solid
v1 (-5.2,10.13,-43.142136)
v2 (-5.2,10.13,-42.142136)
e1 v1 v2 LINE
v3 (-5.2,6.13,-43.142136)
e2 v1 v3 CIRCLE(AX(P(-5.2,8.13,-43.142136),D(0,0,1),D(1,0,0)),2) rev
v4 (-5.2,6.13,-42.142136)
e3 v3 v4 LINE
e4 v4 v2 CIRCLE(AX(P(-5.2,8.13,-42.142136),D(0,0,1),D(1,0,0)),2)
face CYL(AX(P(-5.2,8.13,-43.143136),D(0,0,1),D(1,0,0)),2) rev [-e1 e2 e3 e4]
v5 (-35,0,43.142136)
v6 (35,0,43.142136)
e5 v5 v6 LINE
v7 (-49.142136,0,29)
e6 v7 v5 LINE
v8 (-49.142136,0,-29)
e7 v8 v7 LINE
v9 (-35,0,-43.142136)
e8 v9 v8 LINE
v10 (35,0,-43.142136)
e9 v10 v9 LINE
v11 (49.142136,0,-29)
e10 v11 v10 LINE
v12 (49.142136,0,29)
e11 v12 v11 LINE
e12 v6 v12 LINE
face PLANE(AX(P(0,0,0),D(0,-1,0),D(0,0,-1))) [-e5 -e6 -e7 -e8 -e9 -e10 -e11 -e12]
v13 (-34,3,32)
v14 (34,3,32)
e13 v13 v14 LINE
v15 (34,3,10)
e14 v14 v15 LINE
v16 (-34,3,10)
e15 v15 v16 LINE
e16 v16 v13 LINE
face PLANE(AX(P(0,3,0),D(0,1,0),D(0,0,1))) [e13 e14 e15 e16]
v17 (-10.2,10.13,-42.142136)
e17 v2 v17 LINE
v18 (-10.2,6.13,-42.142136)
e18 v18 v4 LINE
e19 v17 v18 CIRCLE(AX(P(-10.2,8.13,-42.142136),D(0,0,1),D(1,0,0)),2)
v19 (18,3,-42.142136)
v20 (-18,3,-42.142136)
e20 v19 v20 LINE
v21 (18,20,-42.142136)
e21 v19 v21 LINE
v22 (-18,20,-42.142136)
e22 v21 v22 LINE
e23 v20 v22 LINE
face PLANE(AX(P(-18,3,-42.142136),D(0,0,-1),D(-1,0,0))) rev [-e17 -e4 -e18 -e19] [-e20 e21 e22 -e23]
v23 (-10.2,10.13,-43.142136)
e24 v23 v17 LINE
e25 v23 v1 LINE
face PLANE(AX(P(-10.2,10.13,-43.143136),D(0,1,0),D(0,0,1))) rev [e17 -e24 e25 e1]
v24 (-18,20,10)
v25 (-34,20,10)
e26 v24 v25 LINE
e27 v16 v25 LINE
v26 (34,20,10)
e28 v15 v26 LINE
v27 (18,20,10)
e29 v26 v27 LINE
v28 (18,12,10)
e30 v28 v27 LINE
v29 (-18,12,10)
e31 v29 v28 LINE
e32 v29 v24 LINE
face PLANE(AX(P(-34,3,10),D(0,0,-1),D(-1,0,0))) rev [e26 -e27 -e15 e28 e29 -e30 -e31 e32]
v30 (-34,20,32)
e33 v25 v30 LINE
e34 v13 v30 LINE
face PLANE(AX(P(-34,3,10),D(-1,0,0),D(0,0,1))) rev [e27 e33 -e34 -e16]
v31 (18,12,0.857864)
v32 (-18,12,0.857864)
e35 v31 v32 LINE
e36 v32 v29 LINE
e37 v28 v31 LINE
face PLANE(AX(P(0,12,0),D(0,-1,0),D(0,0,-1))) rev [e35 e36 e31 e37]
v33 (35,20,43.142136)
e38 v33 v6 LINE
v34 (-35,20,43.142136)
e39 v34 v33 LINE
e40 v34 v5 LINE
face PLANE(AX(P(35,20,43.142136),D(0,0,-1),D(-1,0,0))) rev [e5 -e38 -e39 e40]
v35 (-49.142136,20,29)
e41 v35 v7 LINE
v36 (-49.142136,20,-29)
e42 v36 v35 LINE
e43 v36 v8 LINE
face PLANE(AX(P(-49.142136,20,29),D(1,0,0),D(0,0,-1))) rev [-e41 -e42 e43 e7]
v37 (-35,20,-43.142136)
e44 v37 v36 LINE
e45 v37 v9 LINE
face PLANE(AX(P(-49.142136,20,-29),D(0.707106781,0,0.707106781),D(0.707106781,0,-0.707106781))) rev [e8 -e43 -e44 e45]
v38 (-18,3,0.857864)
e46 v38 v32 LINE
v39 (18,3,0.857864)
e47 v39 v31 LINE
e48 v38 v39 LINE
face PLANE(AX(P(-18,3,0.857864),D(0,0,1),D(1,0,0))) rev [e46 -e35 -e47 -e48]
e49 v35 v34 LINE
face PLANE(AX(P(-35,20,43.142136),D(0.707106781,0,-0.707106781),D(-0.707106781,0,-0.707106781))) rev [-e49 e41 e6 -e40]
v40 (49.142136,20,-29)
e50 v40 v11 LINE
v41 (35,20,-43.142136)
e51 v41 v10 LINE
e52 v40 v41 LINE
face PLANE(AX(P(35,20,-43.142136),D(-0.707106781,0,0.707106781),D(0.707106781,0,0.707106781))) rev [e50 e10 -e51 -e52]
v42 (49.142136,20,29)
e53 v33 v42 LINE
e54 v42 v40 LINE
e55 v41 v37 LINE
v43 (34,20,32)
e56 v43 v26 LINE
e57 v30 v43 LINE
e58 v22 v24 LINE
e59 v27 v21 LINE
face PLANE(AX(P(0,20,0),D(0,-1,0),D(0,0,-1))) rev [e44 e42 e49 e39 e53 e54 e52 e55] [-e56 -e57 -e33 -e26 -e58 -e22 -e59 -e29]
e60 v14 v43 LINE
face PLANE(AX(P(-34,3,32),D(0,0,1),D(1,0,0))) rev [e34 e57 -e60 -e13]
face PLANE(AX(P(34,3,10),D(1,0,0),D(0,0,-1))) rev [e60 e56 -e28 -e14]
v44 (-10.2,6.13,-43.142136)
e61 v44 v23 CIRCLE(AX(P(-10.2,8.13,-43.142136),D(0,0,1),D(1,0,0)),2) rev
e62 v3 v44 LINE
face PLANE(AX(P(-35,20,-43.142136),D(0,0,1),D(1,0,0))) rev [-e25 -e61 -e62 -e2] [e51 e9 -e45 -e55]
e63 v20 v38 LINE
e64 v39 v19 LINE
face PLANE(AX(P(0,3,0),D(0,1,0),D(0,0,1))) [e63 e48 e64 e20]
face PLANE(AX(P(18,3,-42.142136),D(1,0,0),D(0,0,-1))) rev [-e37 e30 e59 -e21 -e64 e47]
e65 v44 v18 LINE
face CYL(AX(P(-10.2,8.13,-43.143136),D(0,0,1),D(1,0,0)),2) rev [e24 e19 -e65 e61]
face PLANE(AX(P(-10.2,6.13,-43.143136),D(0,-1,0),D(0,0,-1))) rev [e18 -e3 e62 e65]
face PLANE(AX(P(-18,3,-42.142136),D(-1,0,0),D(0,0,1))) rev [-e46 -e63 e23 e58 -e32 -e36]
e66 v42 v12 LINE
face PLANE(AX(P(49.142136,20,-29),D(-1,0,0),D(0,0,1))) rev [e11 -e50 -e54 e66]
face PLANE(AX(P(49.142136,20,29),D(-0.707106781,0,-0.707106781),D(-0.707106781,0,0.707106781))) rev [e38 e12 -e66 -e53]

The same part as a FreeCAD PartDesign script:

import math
import FreeCAD as App
import Part
import Sketcher
from FreeCAD import Vector

doc = App.newDocument("Part")
params = doc.addObject("Spreadsheet::Sheet", "Params")
for row, (alias, value) in enumerate([
    ("sketch1_width", "70 mm"),
    ("sketch1_height", "58 mm"),
    ("sketch1_length", "20 mm"),
    ("pad1_length", "20 mm"),
    ("sketch2_width", "36 mm"),
    ("sketch2_width2", "68 mm"),
    ("sketch2_height", "43 mm"),
    ("sketch2_height2", "22 mm"),
    ("pocket1_length", "17 mm"),
    ("sketch3_width", "36 mm"),
    ("pocket2_length", "8 mm"),
    ("sketch4_radius", "2 mm"),
    ("sketch4_width", "5 mm"),
], start=1):
    params.set(f"A{row}", alias)
    params.set(f"B{row}", "=" + value)
    params.setAlias(f"B{row}", alias)

body = doc.addObject("PartDesign::Body", "Body")

# Sketch on XZ plane
sketch1 = body.newObject("Sketcher::SketchObject", "Sketch")
sketch1.AttachmentSupport = (doc.getObject("XZ_Plane"), [""])
sketch1.MapMode = "FlatFace"
sketch1.addGeometry([
    Part.LineSegment(Vector(35, -43, 0), Vector(-35, -43, 0)),  # 0
    Part.LineSegment(Vector(-35, -43, 0), Vector(-49, -29, 0)),  # 1
    Part.LineSegment(Vector(-49, -29, 0), Vector(-49, 29, 0)),  # 2
    Part.LineSegment(Vector(-49, 29, 0), Vector(-35, 43, 0)),  # 3
    Part.LineSegment(Vector(-35, 43, 0), Vector(35, 43, 0)),  # 4
    Part.LineSegment(Vector(35, 43, 0), Vector(49, 29, 0)),  # 5
    Part.LineSegment(Vector(49, 29, 0), Vector(49, -29, 0)),  # 6
    Part.LineSegment(Vector(49, -29, 0), Vector(35, -43, 0)),  # 7
], False)
sketch1.addConstraint([
    Sketcher.Constraint("Coincident", 0, 2, 1, 1),
    Sketcher.Constraint("Coincident", 1, 2, 2, 1),
    Sketcher.Constraint("Coincident", 2, 2, 3, 1),
    Sketcher.Constraint("Coincident", 3, 2, 4, 1),
    Sketcher.Constraint("Coincident", 4, 2, 5, 1),
    Sketcher.Constraint("Coincident", 5, 2, 6, 1),
    Sketcher.Constraint("Coincident", 6, 2, 7, 1),
    Sketcher.Constraint("Coincident", 7, 2, 0, 1),
    Sketcher.Constraint("Horizontal", 0),
    Sketcher.Constraint("Vertical", 2),
    Sketcher.Constraint("Horizontal", 4),
    Sketcher.Constraint("Vertical", 6),
    Sketcher.Constraint("Symmetric", 0, 2, 4, 2, -1, 1),
    Sketcher.Constraint("Symmetric", 1, 2, 5, 2, -1, 1),
    Sketcher.Constraint("Perpendicular", 1, 3),
    Sketcher.Constraint("Perpendicular", 5, 7),
    Sketcher.Constraint("Horizontal", 2, 2, 5, 2),
    Sketcher.Constraint("Horizontal", 1, 2, 6, 2),
    Sketcher.Constraint("Vertical", 0, 2, 3, 2),
    Sketcher.Constraint("DistanceX", 0, 2, 0, 1, 70.0),
    Sketcher.Constraint("DistanceY", 2, 1, 2, 2, 58.0),
    Sketcher.Constraint("Distance", 1, 20.0),
])
sketch1.setExpression("Constraints[19]", "Params.sketch1_width")
sketch1.setExpression("Constraints[20]", "Params.sketch1_height")
sketch1.setExpression("Constraints[21]", "Params.sketch1_length")
pad1 = body.newObject("PartDesign::Pad", "Pad")
pad1.Profile = sketch1
pad1.setExpression("Length", "Params.pad1_length")
pad1.Reversed = True

# Sketch on XZ plane
sketch2 = body.newObject("Sketcher::SketchObject", "Sketch001")
sketch2.AttachmentSupport = (doc.getObject("XZ_Plane"), [""])
sketch2.MapMode = "FlatFace"
sketch2.AttachmentOffset = App.Placement(Vector(0, 0, -20), App.Rotation())
sketch2.addGeometry([
    Part.LineSegment(Vector(-18, -42, 0), Vector(-18, 1, 0)),  # 0
    Part.LineSegment(Vector(-18, 1, 0), Vector(18, 1, 0)),  # 1
    Part.LineSegment(Vector(18, 1, 0), Vector(18, -42, 0)),  # 2
    Part.LineSegment(Vector(18, -42, 0), Vector(-18, -42, 0)),  # 3
    Part.LineSegment(Vector(-34, 10, 0), Vector(-34, 32, 0)),  # 4
    Part.LineSegment(Vector(-34, 32, 0), Vector(34, 32, 0)),  # 5
    Part.LineSegment(Vector(34, 32, 0), Vector(34, 10, 0)),  # 6
    Part.LineSegment(Vector(34, 10, 0), Vector(-34, 10, 0)),  # 7
], False)
sketch2.addConstraint([
    Sketcher.Constraint("Coincident", 0, 2, 1, 1),
    Sketcher.Constraint("Coincident", 1, 2, 2, 1),
    Sketcher.Constraint("Coincident", 2, 2, 3, 1),
    Sketcher.Constraint("Coincident", 3, 2, 0, 1),
    Sketcher.Constraint("Coincident", 4, 2, 5, 1),
    Sketcher.Constraint("Coincident", 5, 2, 6, 1),
    Sketcher.Constraint("Coincident", 6, 2, 7, 1),
    Sketcher.Constraint("Coincident", 7, 2, 4, 1),
    Sketcher.Constraint("Vertical", 0),
    Sketcher.Constraint("Horizontal", 1),
    Sketcher.Constraint("Vertical", 2),
    Sketcher.Constraint("Horizontal", 3),
    Sketcher.Constraint("Vertical", 4),
    Sketcher.Constraint("Horizontal", 5),
    Sketcher.Constraint("Vertical", 6),
    Sketcher.Constraint("Horizontal", 7),
    Sketcher.Constraint("DistanceX", 1, 1, 1, 2, 36.0),
    Sketcher.Constraint("DistanceX", 5, 1, 5, 2, 68.0),
    Sketcher.Constraint("DistanceY", 0, 1, 0, 2, 43.0),
    Sketcher.Constraint("DistanceY", 4, 1, 4, 2, 22.0),
    Sketcher.Constraint("DistanceX", 0, 2, -1, 1, 18.0),
    Sketcher.Constraint("DistanceX", 4, 2, -1, 1, 34.0),
    Sketcher.Constraint("DistanceY", -1, 1, 4, 2, 32.0),
    Sketcher.Constraint("DistanceY", -1, 1, 0, 2, 0.857864),
])
sketch2.setExpression("Constraints[16]", "Params.sketch2_width")
sketch2.setExpression("Constraints[17]", "Params.sketch2_width2")
sketch2.setExpression("Constraints[18]", "Params.sketch2_height")
sketch2.setExpression("Constraints[19]", "Params.sketch2_height2")
pocket1 = body.newObject("PartDesign::Pocket", "Pocket")
pocket1.Profile = sketch2
pocket1.setExpression("Length", "Params.pocket1_length")
pocket1.Reversed = True

# Sketch on XZ plane
sketch3 = body.newObject("Sketcher::SketchObject", "Sketch002")
sketch3.AttachmentSupport = (doc.getObject("XZ_Plane"), [""])
sketch3.MapMode = "FlatFace"
sketch3.AttachmentOffset = App.Placement(Vector(0, 0, -20), App.Rotation())
sketch3.addGeometry([
    Part.LineSegment(Vector(-18, 1, 0), Vector(-18, 10, 0)),
    Part.LineSegment(Vector(-18, 10, 0), Vector(18, 10, 0)),
    Part.LineSegment(Vector(18, 10, 0), Vector(18, 1, 0)),
    Part.LineSegment(Vector(18, 1, 0), Vector(-18, 1, 0)),
], False)
sketch3.addConstraint([
    Sketcher.Constraint("Coincident", 0, 2, 1, 1),
    Sketcher.Constraint("Coincident", 1, 2, 2, 1),
    Sketcher.Constraint("Coincident", 2, 2, 3, 1),
    Sketcher.Constraint("Coincident", 3, 2, 0, 1),
    Sketcher.Constraint("Vertical", 0),
    Sketcher.Constraint("Horizontal", 1),
    Sketcher.Constraint("Vertical", 2),
    Sketcher.Constraint("Horizontal", 3),
    Sketcher.Constraint("DistanceX", 1, 1, 1, 2, 36.0),
    Sketcher.Constraint("DistanceX", 0, 2, -1, 1, 18.0),
    Sketcher.Constraint("DistanceY", -1, 1, 0, 2, 10.0),
    Sketcher.Constraint("DistanceY", 0, 1, 0, 2, 9.142136),
])
sketch3.setExpression("Constraints[8]", "Params.sketch3_width")
pocket2 = body.newObject("PartDesign::Pocket", "Pocket001")
pocket2.Profile = sketch3
pocket2.setExpression("Length", "Params.pocket2_length")
pocket2.Reversed = True

# Sketch on XY plane
sketch4 = body.newObject("Sketcher::SketchObject", "Sketch003")
sketch4.AttachmentSupport = (doc.getObject("XY_Plane"), [""])
sketch4.MapMode = "FlatFace"
sketch4.AttachmentOffset = App.Placement(Vector(0, 0, -42.142136), App.Rotation())
sketch4.addGeometry([
    Part.LineSegment(Vector(-5.2, 10.1, 0), Vector(-10.2, 10.1, 0)),
    Part.ArcOfCircle(Part.Circle(Vector(-10.2, 8.1, 0), Vector(0, 0, 1), 2), math.radians(90), math.radians(270)),
    Part.LineSegment(Vector(-10.2, 6.1, 0), Vector(-5.2, 6.1, 0)),
    Part.ArcOfCircle(Part.Circle(Vector(-5.2, 8.1, 0), Vector(0, 0, 1), 2), math.radians(-90), math.radians(90)),
], False)
sketch4.addConstraint([
    Sketcher.Constraint("Tangent", 0, 2, 1, 1),
    Sketcher.Constraint("Tangent", 1, 2, 2, 1),
    Sketcher.Constraint("Tangent", 2, 2, 3, 1),
    Sketcher.Constraint("Tangent", 3, 2, 0, 1),
    Sketcher.Constraint("Horizontal", 0),
    Sketcher.Constraint("Horizontal", 2),
    Sketcher.Constraint("Radius", 1, 2.0),
    Sketcher.Constraint("DistanceX", 0, 2, 0, 1, 5.0),
    Sketcher.Constraint("DistanceX", 1, 3, -1, 1, 10.2),
    Sketcher.Constraint("DistanceY", -1, 1, 1, 3, 8.13),
])
sketch4.setExpression("Constraints[6]", "Params.sketch4_radius")
sketch4.setExpression("Constraints[7]", "Params.sketch4_width")
pocket3 = body.newObject("PartDesign::Pocket", "Pocket002")
pocket3.Profile = sketch4
pocket3.Type = "UpToFirst"

doc.recompute()
